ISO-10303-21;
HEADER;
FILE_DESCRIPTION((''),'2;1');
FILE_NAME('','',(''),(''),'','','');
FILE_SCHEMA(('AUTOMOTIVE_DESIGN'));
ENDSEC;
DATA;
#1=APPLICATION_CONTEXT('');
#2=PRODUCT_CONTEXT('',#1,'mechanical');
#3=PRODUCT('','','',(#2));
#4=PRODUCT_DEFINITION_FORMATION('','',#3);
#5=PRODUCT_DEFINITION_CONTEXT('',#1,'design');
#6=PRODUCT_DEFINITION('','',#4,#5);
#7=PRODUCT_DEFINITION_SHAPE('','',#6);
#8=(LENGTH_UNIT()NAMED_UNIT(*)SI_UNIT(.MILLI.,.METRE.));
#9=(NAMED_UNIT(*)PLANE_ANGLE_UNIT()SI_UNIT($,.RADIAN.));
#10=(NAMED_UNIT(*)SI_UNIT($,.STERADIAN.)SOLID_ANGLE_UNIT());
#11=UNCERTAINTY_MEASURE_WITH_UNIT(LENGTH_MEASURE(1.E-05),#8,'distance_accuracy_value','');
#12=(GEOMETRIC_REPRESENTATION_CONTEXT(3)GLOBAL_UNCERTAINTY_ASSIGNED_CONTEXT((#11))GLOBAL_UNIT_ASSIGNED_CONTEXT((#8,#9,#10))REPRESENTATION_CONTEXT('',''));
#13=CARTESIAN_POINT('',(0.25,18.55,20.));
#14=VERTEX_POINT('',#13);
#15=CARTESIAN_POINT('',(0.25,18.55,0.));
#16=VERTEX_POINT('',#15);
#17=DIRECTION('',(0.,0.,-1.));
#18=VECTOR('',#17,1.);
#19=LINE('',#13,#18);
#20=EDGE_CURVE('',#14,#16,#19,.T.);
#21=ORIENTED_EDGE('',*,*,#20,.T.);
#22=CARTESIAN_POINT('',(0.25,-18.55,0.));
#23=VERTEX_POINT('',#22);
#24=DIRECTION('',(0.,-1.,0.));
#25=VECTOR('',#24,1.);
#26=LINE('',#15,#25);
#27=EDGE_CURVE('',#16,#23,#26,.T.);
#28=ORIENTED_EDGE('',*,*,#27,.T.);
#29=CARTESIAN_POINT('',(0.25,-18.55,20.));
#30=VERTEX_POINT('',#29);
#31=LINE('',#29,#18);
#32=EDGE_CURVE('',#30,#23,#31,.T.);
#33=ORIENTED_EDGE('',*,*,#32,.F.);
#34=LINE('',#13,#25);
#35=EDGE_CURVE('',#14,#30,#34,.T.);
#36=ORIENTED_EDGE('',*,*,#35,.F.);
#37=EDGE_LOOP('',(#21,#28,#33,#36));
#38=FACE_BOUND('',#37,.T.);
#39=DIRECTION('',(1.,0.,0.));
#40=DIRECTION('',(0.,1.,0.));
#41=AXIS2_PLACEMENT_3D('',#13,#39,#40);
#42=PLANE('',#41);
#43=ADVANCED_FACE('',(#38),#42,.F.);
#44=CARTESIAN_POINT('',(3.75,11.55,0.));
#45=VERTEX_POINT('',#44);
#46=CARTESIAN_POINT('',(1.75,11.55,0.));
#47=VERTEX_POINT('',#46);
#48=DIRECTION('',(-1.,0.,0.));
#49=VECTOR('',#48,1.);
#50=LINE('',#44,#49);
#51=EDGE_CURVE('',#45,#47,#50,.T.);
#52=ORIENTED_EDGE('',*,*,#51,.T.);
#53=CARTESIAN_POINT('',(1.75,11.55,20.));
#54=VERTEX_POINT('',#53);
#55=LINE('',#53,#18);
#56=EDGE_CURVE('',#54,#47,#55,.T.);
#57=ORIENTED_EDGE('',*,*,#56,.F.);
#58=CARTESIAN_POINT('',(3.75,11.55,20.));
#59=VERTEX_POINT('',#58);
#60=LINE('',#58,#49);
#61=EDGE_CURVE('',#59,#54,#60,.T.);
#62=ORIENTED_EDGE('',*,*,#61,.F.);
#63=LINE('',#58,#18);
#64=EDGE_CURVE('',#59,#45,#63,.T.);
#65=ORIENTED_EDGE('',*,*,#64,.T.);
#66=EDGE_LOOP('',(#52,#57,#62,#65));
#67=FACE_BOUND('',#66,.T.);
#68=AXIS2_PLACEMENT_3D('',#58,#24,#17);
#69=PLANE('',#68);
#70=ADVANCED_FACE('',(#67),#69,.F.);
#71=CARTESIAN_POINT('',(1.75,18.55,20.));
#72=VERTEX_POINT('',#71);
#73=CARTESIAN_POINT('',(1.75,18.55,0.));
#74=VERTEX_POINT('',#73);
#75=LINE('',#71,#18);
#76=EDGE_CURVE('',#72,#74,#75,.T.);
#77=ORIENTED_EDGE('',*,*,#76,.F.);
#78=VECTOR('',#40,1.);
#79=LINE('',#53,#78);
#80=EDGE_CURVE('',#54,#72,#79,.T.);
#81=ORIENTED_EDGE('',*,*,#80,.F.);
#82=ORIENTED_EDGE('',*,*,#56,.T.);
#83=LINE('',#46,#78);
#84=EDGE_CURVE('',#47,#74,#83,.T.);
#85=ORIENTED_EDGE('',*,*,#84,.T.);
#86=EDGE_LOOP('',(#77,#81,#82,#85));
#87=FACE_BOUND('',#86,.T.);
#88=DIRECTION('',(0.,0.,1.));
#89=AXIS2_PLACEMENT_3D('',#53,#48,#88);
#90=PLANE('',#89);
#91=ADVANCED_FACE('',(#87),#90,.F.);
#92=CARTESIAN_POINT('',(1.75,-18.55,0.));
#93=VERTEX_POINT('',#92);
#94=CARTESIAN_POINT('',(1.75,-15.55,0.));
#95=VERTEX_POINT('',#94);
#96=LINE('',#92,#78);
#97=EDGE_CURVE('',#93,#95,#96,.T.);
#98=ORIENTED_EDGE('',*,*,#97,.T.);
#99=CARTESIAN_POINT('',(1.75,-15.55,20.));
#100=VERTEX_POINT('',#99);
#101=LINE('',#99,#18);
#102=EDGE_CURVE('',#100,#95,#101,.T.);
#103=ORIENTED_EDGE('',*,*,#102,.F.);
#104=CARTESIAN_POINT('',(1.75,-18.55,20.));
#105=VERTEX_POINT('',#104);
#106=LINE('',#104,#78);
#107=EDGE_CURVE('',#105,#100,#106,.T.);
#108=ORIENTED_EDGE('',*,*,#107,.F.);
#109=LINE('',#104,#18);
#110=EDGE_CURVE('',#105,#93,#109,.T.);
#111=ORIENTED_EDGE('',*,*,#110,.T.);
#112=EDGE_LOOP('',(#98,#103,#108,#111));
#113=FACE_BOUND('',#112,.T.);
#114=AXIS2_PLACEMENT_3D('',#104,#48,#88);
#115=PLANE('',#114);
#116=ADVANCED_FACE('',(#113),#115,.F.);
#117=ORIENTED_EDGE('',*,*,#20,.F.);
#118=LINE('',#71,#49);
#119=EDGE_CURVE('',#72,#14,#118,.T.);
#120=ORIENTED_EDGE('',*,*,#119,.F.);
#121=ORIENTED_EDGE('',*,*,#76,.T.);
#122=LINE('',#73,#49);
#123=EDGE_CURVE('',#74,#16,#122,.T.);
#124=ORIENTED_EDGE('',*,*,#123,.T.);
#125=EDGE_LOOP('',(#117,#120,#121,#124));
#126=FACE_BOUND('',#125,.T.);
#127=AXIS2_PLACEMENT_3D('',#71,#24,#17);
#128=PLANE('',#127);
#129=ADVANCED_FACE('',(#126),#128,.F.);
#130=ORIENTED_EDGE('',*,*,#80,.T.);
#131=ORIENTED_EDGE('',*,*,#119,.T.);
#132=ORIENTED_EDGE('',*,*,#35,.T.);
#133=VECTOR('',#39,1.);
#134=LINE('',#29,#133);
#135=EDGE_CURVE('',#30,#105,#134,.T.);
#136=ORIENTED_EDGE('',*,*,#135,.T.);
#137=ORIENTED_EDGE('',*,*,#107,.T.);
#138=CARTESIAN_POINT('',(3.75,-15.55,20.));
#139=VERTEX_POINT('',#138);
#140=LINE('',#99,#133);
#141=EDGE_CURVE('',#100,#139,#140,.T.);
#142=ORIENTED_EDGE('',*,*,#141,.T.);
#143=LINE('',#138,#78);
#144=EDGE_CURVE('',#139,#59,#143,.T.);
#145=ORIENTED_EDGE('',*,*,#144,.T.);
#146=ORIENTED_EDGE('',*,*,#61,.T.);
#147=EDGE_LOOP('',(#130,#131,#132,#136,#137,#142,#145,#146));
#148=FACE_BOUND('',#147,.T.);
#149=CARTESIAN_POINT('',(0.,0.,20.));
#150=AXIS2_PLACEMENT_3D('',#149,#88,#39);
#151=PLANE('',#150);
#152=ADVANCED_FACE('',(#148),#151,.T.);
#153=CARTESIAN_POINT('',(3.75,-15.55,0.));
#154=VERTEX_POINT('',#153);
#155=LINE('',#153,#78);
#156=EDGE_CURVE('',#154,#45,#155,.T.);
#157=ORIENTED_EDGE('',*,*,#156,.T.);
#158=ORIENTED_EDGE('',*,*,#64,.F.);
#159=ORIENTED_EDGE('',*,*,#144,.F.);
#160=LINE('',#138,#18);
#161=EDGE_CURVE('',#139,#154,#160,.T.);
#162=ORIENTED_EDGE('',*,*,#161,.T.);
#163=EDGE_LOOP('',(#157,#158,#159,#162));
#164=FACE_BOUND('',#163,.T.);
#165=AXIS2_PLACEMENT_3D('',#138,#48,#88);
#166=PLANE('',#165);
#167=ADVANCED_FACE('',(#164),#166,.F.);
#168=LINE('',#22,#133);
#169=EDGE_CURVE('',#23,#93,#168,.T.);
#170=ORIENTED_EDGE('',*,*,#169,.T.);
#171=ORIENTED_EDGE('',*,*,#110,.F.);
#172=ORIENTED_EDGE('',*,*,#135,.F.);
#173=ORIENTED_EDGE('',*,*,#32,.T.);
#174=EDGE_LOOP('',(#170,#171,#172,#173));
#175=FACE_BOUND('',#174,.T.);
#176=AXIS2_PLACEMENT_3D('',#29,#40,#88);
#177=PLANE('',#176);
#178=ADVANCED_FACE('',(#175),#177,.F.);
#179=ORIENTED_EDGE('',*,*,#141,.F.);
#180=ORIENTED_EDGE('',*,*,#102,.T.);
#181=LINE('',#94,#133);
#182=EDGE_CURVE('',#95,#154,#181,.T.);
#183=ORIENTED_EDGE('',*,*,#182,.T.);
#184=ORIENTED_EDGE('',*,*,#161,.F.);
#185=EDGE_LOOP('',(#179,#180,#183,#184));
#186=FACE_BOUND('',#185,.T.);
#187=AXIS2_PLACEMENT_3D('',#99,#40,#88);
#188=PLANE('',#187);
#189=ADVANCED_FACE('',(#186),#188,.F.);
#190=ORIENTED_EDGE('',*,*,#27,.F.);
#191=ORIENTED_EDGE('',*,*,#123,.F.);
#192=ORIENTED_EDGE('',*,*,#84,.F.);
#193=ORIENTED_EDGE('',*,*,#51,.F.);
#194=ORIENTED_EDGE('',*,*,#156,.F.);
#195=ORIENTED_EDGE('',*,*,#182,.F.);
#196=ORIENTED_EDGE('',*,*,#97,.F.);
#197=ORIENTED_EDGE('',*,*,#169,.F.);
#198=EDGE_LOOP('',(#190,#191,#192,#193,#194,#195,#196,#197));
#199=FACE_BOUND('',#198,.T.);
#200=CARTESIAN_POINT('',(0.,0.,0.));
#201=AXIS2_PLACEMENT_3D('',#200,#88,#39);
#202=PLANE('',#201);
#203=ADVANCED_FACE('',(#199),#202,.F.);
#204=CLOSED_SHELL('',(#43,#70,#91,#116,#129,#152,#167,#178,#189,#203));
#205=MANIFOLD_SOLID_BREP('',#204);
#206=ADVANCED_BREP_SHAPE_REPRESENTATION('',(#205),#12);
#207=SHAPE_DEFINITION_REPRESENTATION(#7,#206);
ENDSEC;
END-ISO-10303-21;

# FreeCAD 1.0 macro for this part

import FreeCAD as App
import Part
import Sketcher
Q = App.Units.Quantity

doc = App.newDocument("Part")
body = doc.addObject("PartDesign::Body", "Body")

# Sketch on XY plane
sketch1 = body.newObject("Sketcher::SketchObject", "Sketch")
sketch1.AttachmentSupport = (doc.getObject("XY_Plane"), [""])
sketch1.MapMode = "FlatFace"
sketch1.addGeometry([
    Part.LineSegment(App.Vector(1.8, 18.6, 0), App.Vector(0.2, 18.6, 0)),  # 0
    Part.LineSegment(App.Vector(0.2, 18.6, 0), App.Vector(0.2, -18.6, 0)),  # 1
    Part.LineSegment(App.Vector(0.2, -18.6, 0), App.Vector(1.8, -18.6, 0)),  # 2
    Part.LineSegment(App.Vector(1.8, -18.6, 0), App.Vector(1.8, -15.6, 0)),  # 3
    Part.LineSegment(App.Vector(1.8, -15.6, 0), App.Vector(3.8, -15.6, 0)),  # 4
    Part.LineSegment(App.Vector(3.8, -15.6, 0), App.Vector(3.8, 11.6, 0)),  # 5
    Part.LineSegment(App.Vector(3.8, 11.6, 0), App.Vector(1.8, 11.6, 0)),  # 6
    Part.LineSegment(App.Vector(1.8, 11.6, 0), App.Vector(1.8, 18.6, 0)),  # 7
], False)
sketch1.addConstraint([
    Sketcher.Constraint("Coincident", 0, 2, 1, 1),
    Sketcher.Constraint("Coincident", 1, 2, 2, 1),
    Sketcher.Constraint("Coincident", 2, 2, 3, 1),
    Sketcher.Constraint("Coincident", 3, 2, 4, 1),
    Sketcher.Constraint("Coincident", 4, 2, 5, 1),
    Sketcher.Constraint("Coincident", 5, 2, 6, 1),
    Sketcher.Constraint("Coincident", 6, 2, 7, 1),
    Sketcher.Constraint("Coincident", 7, 2, 0, 1),
    Sketcher.Constraint("Horizontal", 0),
    Sketcher.Constraint("Vertical", 1),
    Sketcher.Constraint("Horizontal", 2),
    Sketcher.Constraint("Vertical", 3),
    Sketcher.Constraint("Horizontal", 4),
    Sketcher.Constraint("Vertical", 5),
    Sketcher.Constraint("Horizontal", 6),
    Sketcher.Constraint("Vertical", 7),
    Sketcher.Constraint("Symmetric", 2, 2, 7, 2, -1),
    Sketcher.Constraint("DistanceX", 4, 1, 4, 2, Q("2 mm")),
    Sketcher.Constraint("DistanceY", 3, 1, 3, 2, Q("3 mm")),
    Sketcher.Constraint("DistanceY", 7, 1, 7, 2, Q("7 mm")),
    Sketcher.Constraint("DistanceX", 0, 2, 0, 1, Q("1.5 mm")),
    Sketcher.Constraint("DistanceY", 1, 2, 1, 1, Q("37.1 mm")),
    Sketcher.Constraint("DistanceX", -1, 1, 0, 2, Q("0.25 mm")),
])
pad1 = body.newObject("PartDesign::Pad", "Pad")
pad1.Profile = sketch1
pad1.Length = 20

doc.recompute()
